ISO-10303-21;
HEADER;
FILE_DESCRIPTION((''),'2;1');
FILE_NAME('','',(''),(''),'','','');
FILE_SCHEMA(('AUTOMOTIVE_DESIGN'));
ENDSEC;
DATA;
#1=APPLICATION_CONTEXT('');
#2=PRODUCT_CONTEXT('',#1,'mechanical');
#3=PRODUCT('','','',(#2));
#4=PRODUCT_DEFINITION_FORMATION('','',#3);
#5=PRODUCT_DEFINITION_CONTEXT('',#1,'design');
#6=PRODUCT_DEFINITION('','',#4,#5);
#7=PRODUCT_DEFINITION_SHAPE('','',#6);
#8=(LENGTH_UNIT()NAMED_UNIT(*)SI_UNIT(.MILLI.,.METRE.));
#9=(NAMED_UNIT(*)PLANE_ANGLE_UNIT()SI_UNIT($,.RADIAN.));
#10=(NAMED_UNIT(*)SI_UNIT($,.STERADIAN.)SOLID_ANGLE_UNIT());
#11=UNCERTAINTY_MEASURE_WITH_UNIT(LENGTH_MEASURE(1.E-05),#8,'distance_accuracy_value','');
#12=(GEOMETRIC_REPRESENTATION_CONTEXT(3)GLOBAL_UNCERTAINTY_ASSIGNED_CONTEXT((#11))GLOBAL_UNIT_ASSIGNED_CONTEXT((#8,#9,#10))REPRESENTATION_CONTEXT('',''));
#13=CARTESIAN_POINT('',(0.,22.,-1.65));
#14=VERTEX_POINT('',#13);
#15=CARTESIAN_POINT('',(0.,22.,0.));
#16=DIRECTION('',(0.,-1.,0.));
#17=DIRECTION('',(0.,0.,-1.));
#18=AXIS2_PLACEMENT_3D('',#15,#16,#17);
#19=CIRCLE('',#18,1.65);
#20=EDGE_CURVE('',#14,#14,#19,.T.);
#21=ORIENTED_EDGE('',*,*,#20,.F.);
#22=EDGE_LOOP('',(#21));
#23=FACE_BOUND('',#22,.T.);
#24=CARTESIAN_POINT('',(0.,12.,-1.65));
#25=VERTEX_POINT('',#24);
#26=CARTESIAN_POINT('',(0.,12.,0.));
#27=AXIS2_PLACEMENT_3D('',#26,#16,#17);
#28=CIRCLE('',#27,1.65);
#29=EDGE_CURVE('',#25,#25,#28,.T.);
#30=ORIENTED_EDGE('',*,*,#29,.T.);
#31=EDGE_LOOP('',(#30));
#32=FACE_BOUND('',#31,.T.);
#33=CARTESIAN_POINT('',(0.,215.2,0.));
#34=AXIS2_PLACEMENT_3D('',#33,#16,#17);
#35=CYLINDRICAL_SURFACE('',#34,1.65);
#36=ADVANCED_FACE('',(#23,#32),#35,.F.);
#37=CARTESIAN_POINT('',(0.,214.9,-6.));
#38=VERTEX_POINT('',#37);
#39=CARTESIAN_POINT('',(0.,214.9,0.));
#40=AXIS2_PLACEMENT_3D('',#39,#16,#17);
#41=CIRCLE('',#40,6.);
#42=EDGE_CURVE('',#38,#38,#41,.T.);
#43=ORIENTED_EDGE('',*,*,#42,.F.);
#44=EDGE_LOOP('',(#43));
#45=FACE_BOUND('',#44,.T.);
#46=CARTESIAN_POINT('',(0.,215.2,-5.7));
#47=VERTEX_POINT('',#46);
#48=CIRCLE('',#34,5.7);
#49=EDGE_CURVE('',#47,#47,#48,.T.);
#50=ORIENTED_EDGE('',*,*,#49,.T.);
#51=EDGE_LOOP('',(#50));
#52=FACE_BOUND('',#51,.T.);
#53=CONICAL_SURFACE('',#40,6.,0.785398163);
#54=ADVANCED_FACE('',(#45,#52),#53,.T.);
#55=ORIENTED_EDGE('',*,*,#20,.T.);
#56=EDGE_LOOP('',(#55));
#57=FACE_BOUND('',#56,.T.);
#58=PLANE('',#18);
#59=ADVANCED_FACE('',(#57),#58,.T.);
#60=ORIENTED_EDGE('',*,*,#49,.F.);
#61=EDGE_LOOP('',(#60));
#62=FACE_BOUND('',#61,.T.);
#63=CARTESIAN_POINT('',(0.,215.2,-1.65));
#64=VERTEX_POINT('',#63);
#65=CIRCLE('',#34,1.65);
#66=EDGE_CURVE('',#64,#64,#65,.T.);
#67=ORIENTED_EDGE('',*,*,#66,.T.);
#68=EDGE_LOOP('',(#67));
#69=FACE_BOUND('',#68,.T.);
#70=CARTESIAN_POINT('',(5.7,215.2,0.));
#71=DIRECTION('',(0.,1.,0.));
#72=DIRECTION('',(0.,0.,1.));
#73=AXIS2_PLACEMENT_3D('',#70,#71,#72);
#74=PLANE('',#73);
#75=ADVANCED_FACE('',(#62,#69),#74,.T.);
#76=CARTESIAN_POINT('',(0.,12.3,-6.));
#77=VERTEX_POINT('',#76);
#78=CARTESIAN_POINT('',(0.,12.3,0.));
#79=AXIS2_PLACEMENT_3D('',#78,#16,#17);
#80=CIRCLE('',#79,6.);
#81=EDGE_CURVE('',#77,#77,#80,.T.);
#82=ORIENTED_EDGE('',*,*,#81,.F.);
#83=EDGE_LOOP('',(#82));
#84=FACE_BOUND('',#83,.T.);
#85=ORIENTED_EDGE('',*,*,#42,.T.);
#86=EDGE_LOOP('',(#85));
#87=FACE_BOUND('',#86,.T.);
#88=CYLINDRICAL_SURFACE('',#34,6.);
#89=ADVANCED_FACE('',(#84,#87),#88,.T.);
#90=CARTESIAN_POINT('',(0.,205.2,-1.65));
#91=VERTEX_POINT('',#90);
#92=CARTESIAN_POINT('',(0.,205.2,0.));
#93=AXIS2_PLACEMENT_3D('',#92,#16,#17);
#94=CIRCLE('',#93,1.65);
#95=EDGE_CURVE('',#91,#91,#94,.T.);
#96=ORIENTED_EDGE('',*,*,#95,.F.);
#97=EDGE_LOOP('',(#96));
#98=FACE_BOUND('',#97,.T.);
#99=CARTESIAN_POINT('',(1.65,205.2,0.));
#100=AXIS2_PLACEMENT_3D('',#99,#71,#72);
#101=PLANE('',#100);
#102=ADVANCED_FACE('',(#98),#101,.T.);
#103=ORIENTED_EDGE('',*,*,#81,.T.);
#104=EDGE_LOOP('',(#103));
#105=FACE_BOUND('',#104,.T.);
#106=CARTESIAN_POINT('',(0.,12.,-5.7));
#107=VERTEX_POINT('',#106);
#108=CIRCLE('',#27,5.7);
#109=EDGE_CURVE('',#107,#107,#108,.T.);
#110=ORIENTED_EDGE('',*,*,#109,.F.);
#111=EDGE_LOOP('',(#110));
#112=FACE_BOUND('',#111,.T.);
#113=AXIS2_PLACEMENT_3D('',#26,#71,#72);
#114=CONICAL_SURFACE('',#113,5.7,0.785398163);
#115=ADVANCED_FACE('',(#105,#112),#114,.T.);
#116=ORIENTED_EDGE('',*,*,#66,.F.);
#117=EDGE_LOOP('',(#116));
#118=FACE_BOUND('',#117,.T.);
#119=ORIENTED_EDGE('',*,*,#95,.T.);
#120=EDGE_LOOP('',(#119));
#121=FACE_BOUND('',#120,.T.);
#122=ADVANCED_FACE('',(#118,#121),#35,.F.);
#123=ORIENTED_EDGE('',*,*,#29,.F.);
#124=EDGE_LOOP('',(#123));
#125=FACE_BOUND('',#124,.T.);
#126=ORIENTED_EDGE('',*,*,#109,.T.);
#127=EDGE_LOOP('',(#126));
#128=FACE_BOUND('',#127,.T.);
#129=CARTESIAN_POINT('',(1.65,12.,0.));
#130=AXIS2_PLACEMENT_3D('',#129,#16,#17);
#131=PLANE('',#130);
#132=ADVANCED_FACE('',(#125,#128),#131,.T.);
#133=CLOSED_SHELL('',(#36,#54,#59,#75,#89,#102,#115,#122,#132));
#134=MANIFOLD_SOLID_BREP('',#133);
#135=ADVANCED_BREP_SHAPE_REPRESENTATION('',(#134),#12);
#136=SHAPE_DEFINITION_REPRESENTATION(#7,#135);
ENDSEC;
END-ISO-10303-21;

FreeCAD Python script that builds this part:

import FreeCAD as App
import Part
import Sketcher
Q = App.Units.Quantity


def add_polygon(sketch, points):
    """Adds a closed chain of lines whose ends are joined by coincident constraints."""
    first, n = sketch.GeometryCount, len(points)
    for a, b in zip(points, points[1:] + points[:1]):
        sketch.addGeometry(Part.LineSegment(App.Vector(*a, 0), App.Vector(*b, 0)), False)
    for i in range(n):
        sketch.addConstraint(Sketcher.Constraint("Coincident", first + i, 2, first + (i + 1) % n, 1))

doc = App.newDocument("Part")
body = doc.addObject("PartDesign::Body", "Body")

# Sketch on XY plane
sketch1 = body.newObject("Sketcher::SketchObject", "Sketch")
sketch1.AttachmentSupport = (doc.getObject("XY_Plane"), [""])
sketch1.MapMode = "FlatFace"
add_polygon(sketch1, [(1.65, 205.2), (0, 205.2), (0, 22), (1.65, 22), (1.65, 12), (5.7, 12), (6, 12.3), (6, 214.9), (5.7, 215.2), (1.65, 215.2)])  # lines 0-9
sketch1.addConstraint(Sketcher.Constraint("Horizontal", 0))
sketch1.addConstraint(Sketcher.Constraint("Vertical", 1))
sketch1.addConstraint(Sketcher.Constraint("Horizontal", 2))
sketch1.addConstraint(Sketcher.Constraint("Vertical", 3))
sketch1.addConstraint(Sketcher.Constraint("Horizontal", 4))
sketch1.addConstraint(Sketcher.Constraint("Vertical", 6))
sketch1.addConstraint(Sketcher.Constraint("Horizontal", 8))
sketch1.addConstraint(Sketcher.Constraint("Vertical", 9))
sketch1.addConstraint(Sketcher.Constraint("PointOnObject", 0, 2, -2))
sketch1.addConstraint(Sketcher.Constraint("Perpendicular", 5, 7))
sketch1.addConstraint(Sketcher.Constraint("Vertical", 4, 2, 7, 2))
sketch1.addConstraint(Sketcher.Constraint("Vertical", 3, 2, 8, 2))
sketch1.addConstraint(Sketcher.Constraint("Equal", 3, 9))
sketch1.addConstraint(Sketcher.Constraint("Equal", 5, 7))
sketch1.addConstraint(Sketcher.Constraint("DistanceY", 3, 2, 3, 1, Q("10 mm")))
sketch1.addConstraint(Sketcher.Constraint("DistanceY", 1, 2, 1, 1, Q("183.2 mm")))
sketch1.addConstraint(Sketcher.Constraint("DistanceY", 6, 1, 6, 2, Q("202.6 mm")))
sketch1.addConstraint(Sketcher.Constraint("DistanceY", -1, 1, 1, 2, Q("22 mm")))
sketch1.addConstraint(Sketcher.Constraint("DistanceX", -1, 1, 5, 2, Q("6 mm")))
sketch1.addConstraint(Sketcher.Constraint("DistanceX", 0, 2, 0, 1, Q("1.65 mm")))
revolution = body.newObject("PartDesign::Revolution", "Revolution")
revolution.Profile = sketch1
revolution.ReferenceAxis = (sketch1, ["V_Axis"])
revolution.Angle = 360

doc.recompute()
